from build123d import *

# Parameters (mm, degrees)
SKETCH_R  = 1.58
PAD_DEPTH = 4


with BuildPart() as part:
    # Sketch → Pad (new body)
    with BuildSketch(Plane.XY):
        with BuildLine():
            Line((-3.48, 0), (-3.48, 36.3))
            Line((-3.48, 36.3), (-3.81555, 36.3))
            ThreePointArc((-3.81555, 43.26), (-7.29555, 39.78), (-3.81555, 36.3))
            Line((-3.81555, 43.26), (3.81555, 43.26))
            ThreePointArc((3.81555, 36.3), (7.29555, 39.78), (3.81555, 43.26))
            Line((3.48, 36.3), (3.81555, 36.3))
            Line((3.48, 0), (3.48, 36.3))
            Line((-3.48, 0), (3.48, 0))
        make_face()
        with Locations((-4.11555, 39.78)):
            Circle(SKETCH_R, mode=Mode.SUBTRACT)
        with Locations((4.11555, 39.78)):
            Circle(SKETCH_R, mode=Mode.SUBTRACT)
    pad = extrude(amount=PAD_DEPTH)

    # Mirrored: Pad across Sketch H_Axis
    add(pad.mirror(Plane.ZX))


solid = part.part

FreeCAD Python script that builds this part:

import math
import FreeCAD as App
import Part
import Sketcher
from FreeCAD import Vector

doc = App.newDocument("Part")
body = doc.addObject("PartDesign::Body", "Body")

# Sketch on XY plane
sketch1 = doc.addObject("Sketcher::SketchObject", "Sketch")
body.addObject(sketch1)
sketch1.AttachmentSupport = (doc.XY_Plane, [""])
sketch1.MapMode = "FlatFace"
sketch1.addGeometry(Part.LineSegment(Vector(-3.48, 36.3, 0), Vector(-3.48, 0, 0)), False)
sketch1.addGeometry(Part.LineSegment(Vector(-3.48, 0, 0), Vector(3.48, 0, 0)), False)
sketch1.addGeometry(Part.LineSegment(Vector(3.48, 0, 0), Vector(3.48, 36.3, 0)), False)
sketch1.addGeometry(Part.LineSegment(Vector(3.48, 36.3, 0), Vector(3.82, 36.3, 0)), False)
sketch1.addGeometry(Part.ArcOfCircle(Part.Circle(Vector(3.82, 39.78, 0), Vector(0, 0, 1), 3.48), math.radians(-90), math.radians(90)), False)
sketch1.addGeometry(Part.LineSegment(Vector(3.82, 43.26, 0), Vector(-3.82, 43.26, 0)), False)
sketch1.addGeometry(Part.ArcOfCircle(Part.Circle(Vector(-3.82, 39.78, 0), Vector(0, 0, 1), 3.48), math.radians(90), math.radians(270)), False)
sketch1.addGeometry(Part.LineSegment(Vector(-3.82, 36.3, 0), Vector(-3.48, 36.3, 0)), False)
sketch1.addGeometry(Part.Circle(Vector(4.12, 39.78, 0), Vector(0, 0, 1), 1.58), False)
sketch1.addGeometry(Part.Circle(Vector(-4.12, 39.78, 0), Vector(0, 0, 1), 1.58), False)
sketch1.addConstraint(Sketcher.Constraint("Coincident", 0, 2, 1, 1))
sketch1.addConstraint(Sketcher.Constraint("Coincident", 1, 2, 2, 1))
sketch1.addConstraint(Sketcher.Constraint("Coincident", 2, 2, 3, 1))
sketch1.addConstraint(Sketcher.Constraint("Tangent", 3, 2, 4, 1))
sketch1.addConstraint(Sketcher.Constraint("Tangent", 4, 2, 5, 1))
sketch1.addConstraint(Sketcher.Constraint("Tangent", 5, 2, 6, 1))
sketch1.addConstraint(Sketcher.Constraint("Tangent", 6, 2, 7, 1))
sketch1.addConstraint(Sketcher.Constraint("Coincident", 7, 2, 0, 1))
sketch1.addConstraint(Sketcher.Constraint("Vertical", 0))
sketch1.addConstraint(Sketcher.Constraint("Horizontal", 1))
sketch1.addConstraint(Sketcher.Constraint("Vertical", 2))
sketch1.addConstraint(Sketcher.Constraint("Horizontal", 3))
sketch1.addConstraint(Sketcher.Constraint("Horizontal", 5))
sketch1.addConstraint(Sketcher.Constraint("Horizontal", 7))
sketch1.addConstraint(Sketcher.Constraint("Equal", 4, 6))
sketch1.addConstraint(Sketcher.Constraint("Equal", 8, 9))
sketch1.addConstraint(Sketcher.Constraint("Symmetric", 0, 2, 1, 2, -1, 1))
sketch1.addConstraint(Sketcher.Constraint("Symmetric", 8, 3, 9, 3, -2))
sketch1.addConstraint(Sketcher.Constraint("Horizontal", 6, 3, 8, 3))
sketch1.addConstraint(Sketcher.Constraint("Equal", 3, 7))
sketch1.addConstraint(Sketcher.Constraint("Diameter", 8, 3.16))
sketch1.addConstraint(Sketcher.Constraint("Radius", 4, 3.48))
sketch1.addConstraint(Sketcher.Constraint("DistanceY", 0, 2, 0, 1, 36.3))
sketch1.addConstraint(Sketcher.Constraint("DistanceX", 1, 1, 1, 2, 6.96))
sketch1.addConstraint(Sketcher.Constraint("DistanceX", 4, 3, 8, 3, 0.3))
sketch1.addConstraint(Sketcher.Constraint("DistanceX", 5, 2, 5, 1, 7.6311))
pad1 = doc.addObject("PartDesign::Pad", "Pad")
body.addObject(pad1)
pad1.Profile = sketch1
pad1.Length = 4
doc.recompute()

mirrored = doc.addObject("PartDesign::Mirrored", "Mirrored")
body.addObject(mirrored)
mirrored.Originals = [pad1]
mirrored.MirrorPlane = (doc.XZ_Plane, [""])
body.Tip = mirrored

doc.recompute()
